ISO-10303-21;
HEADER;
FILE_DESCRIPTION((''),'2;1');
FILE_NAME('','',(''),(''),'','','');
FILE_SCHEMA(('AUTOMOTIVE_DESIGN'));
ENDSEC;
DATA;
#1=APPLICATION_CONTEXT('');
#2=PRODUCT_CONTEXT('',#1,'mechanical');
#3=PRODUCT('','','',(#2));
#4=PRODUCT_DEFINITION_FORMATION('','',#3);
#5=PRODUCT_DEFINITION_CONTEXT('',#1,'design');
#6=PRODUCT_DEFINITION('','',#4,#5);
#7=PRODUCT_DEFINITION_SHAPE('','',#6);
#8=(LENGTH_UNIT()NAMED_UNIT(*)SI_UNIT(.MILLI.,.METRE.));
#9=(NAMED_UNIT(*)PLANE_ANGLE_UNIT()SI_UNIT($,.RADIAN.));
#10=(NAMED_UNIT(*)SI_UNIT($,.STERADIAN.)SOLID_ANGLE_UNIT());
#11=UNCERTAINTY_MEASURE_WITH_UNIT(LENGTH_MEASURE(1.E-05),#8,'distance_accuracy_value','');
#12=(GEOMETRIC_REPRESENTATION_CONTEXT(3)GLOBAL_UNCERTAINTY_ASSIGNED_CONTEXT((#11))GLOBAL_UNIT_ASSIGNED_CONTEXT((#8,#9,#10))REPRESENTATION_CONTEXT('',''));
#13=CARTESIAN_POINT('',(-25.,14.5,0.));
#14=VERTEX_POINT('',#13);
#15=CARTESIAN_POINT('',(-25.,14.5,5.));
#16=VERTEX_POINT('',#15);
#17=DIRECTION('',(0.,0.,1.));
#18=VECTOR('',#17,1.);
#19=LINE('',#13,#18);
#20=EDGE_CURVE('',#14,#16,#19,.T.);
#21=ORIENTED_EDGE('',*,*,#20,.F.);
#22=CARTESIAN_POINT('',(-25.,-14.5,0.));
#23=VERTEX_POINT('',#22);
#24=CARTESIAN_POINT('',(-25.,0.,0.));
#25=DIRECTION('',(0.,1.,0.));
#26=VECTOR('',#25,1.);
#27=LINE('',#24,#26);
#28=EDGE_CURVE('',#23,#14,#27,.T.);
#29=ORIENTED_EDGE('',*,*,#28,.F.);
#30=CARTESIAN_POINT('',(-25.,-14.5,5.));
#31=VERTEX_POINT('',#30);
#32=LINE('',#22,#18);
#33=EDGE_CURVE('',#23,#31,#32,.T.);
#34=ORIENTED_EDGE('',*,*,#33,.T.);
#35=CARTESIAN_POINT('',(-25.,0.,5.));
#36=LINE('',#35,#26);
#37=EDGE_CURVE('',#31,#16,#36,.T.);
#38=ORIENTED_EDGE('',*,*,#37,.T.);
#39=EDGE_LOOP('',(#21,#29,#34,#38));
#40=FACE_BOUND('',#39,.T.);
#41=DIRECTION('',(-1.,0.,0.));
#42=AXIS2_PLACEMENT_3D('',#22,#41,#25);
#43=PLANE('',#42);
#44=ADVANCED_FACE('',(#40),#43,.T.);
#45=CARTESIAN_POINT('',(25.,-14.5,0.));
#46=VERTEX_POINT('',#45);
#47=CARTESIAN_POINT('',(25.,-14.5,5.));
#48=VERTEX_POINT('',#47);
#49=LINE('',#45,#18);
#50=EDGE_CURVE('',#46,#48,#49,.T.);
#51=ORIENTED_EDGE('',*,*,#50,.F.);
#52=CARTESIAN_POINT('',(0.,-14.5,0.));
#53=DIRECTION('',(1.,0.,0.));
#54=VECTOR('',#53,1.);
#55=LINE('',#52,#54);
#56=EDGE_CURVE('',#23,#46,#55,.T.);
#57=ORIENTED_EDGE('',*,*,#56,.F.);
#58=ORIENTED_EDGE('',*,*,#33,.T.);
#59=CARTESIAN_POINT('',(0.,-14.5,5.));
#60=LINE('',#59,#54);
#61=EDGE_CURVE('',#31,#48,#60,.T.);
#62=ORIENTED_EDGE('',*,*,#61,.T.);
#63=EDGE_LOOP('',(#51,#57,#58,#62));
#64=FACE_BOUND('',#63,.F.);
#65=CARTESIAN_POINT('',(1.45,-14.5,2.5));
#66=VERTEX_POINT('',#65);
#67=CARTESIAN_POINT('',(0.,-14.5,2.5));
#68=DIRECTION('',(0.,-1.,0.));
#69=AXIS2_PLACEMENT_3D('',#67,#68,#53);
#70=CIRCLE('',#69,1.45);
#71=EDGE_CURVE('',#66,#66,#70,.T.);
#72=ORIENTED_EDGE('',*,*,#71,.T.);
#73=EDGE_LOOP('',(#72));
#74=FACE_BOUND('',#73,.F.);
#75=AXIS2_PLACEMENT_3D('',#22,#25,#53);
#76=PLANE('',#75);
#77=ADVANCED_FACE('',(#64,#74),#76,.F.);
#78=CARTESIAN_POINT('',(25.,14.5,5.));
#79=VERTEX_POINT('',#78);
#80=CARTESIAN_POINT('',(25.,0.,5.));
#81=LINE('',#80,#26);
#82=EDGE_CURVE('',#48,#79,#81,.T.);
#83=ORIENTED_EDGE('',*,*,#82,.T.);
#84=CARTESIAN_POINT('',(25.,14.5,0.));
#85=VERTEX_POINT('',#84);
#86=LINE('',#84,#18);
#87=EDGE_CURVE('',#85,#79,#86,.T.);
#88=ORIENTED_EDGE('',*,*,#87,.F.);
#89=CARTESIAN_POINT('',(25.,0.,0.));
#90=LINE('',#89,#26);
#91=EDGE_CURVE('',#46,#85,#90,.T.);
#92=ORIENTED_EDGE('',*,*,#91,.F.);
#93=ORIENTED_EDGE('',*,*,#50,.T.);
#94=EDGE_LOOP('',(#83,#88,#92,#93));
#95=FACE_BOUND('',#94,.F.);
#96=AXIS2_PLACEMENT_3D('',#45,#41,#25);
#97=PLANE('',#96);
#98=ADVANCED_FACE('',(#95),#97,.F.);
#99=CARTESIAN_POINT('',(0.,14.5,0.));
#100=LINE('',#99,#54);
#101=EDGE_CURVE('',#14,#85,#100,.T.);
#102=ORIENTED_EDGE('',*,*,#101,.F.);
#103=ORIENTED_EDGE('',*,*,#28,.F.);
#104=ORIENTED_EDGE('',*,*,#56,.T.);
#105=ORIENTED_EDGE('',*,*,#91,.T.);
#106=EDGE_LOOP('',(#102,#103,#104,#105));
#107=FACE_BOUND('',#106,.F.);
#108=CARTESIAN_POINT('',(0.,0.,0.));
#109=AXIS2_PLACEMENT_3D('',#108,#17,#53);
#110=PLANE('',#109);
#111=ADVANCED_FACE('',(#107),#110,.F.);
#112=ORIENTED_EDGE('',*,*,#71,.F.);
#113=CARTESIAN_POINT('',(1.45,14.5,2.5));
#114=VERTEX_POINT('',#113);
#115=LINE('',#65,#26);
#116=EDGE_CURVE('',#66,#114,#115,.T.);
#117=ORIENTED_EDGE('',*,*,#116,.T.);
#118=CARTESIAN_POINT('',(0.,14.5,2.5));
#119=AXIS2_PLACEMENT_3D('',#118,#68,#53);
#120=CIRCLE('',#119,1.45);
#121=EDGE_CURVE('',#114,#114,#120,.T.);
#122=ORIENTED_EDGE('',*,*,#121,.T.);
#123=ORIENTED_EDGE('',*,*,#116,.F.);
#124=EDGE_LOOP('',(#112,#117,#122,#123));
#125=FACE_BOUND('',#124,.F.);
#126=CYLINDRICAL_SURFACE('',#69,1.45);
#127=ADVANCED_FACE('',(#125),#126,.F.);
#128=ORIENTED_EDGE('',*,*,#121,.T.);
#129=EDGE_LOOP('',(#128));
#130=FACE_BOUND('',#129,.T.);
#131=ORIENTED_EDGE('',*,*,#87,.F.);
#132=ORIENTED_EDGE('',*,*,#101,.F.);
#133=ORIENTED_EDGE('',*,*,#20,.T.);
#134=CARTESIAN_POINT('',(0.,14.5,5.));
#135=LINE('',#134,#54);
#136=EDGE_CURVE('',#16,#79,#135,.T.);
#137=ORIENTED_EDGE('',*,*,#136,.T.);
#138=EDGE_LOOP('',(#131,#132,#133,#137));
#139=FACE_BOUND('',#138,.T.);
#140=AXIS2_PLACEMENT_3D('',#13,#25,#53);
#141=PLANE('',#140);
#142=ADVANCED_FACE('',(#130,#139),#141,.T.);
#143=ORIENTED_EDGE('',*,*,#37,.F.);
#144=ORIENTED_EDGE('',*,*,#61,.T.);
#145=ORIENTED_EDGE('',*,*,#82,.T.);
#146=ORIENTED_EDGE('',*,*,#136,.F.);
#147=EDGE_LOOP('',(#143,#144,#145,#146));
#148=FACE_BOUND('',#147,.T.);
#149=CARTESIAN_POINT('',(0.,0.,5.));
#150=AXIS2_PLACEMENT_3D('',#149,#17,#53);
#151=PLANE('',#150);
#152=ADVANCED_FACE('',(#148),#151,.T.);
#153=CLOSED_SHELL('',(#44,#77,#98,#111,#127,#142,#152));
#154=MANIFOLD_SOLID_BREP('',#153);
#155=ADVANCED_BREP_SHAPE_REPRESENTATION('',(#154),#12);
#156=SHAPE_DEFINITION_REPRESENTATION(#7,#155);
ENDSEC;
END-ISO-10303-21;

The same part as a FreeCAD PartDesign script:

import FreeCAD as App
import Part
import Sketcher
Q = App.Units.Quantity

doc = App.newDocument("Part")
body = doc.addObject("PartDesign::Body", "Body")

sketch1 = body.newObject("Sketcher::SketchObject", "Sketch")
sketch1.AttachmentSupport = (doc.getObject("XY_Plane"), [""])
sketch1.MapMode = "FlatFace"
sketch1.addGeometry([
    Part.LineSegment(App.Vector(-25, 14, 0), App.Vector(-25, -14, 0)),
    Part.LineSegment(App.Vector(-25, -14, 0), App.Vector(25, -14, 0)),
    Part.LineSegment(App.Vector(25, -14, 0), App.Vector(25, 14, 0)),
    Part.LineSegment(App.Vector(25, 14, 0), App.Vector(-25, 14, 0)),
], False)
sketch1.addConstraint([
    Sketcher.Constraint("Coincident", 0, 2, 1, 1),
    Sketcher.Constraint("Coincident", 1, 2, 2, 1),
    Sketcher.Constraint("Coincident", 2, 2, 3, 1),
    Sketcher.Constraint("Coincident", 3, 2, 0, 1),
    Sketcher.Constraint("Vertical", 0),
    Sketcher.Constraint("Horizontal", 1),
    Sketcher.Constraint("Vertical", 2),
    Sketcher.Constraint("Horizontal", 3),
    Sketcher.Constraint("Symmetric", 0, 2, 2, 2, -1, 1),
    Sketcher.Constraint("DistanceX", 1, 1, 1, 2, Q("50 mm")),
    Sketcher.Constraint("DistanceY", 0, 2, 0, 1, Q("29 mm")),
])
pad1 = body.newObject("PartDesign::Pad", "Pad")
pad1.Profile = sketch1
pad1.Length = 5

sketch2 = body.newObject("Sketcher::SketchObject", "Sketch001")
sketch2.AttachmentSupport = (doc.getObject("XZ_Plane"), [""])
sketch2.MapMode = "FlatFace"
sketch2.AttachmentOffset = App.Placement(App.Vector(0, 0, 14.5), App.Rotation())
sketch2.addGeometry(Part.Circle(App.Vector(0, 2.5, 0), App.Vector(0, 0, 1), 1.4), False)
sketch2.addConstraint([
    Sketcher.Constraint("PointOnObject", 0, 3, -2),
    Sketcher.Constraint("Diameter", 0, Q("2.9 mm")),
    Sketcher.Constraint("DistanceY", -1, 1, 0, 3, Q("2.5 mm")),
])
pocket1 = body.newObject("PartDesign::Pocket", "Pocket")
pocket1.Profile = sketch2
pocket1.Length = 38.6

doc.recompute()
